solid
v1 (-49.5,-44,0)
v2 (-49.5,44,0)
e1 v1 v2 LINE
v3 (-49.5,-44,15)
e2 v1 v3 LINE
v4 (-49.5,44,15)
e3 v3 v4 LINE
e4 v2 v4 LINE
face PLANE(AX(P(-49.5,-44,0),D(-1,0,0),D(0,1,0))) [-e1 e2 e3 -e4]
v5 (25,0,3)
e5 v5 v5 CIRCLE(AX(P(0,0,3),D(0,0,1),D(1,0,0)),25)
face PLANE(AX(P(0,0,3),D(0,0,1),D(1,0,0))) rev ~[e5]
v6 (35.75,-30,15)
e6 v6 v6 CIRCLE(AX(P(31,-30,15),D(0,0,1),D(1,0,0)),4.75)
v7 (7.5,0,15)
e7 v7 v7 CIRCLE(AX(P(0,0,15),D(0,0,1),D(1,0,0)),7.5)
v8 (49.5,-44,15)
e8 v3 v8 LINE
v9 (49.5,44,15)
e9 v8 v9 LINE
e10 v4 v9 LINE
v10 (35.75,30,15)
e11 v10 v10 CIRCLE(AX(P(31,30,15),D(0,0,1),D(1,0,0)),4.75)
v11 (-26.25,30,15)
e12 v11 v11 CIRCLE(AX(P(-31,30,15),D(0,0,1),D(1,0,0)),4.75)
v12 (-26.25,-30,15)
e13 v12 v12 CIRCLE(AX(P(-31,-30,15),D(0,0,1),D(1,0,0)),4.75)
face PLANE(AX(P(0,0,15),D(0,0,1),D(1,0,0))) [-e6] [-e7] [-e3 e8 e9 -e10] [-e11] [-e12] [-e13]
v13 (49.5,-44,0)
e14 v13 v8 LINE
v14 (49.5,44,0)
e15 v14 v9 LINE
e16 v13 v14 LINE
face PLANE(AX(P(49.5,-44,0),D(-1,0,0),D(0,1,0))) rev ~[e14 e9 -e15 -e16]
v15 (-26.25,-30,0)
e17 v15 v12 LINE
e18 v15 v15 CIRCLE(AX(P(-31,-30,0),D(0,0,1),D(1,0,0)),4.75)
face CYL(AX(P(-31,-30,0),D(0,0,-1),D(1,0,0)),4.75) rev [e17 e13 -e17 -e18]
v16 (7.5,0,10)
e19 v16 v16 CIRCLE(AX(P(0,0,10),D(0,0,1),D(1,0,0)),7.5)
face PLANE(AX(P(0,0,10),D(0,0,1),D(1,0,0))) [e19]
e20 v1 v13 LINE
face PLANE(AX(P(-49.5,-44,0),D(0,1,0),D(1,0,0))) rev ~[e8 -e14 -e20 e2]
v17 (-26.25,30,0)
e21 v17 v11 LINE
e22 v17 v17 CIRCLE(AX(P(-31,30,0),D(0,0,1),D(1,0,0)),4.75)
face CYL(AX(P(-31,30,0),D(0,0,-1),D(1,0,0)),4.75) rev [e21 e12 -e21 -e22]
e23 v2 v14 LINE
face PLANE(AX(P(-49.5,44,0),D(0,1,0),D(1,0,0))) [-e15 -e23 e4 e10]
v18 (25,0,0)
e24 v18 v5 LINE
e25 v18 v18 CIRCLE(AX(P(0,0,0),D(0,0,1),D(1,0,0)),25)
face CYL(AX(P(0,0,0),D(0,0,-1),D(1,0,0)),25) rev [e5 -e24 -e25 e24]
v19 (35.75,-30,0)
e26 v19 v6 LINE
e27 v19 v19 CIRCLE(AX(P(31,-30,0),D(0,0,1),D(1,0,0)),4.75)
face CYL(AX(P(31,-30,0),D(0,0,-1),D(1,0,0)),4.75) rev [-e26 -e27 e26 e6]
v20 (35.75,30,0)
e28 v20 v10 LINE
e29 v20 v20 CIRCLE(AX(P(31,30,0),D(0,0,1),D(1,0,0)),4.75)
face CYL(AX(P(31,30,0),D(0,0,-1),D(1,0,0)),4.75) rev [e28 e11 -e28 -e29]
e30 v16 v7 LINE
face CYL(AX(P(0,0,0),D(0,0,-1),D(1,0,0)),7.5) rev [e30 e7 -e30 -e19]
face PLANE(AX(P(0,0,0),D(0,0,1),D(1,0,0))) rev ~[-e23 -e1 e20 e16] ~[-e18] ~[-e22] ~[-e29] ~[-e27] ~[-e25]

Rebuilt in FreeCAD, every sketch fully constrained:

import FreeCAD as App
import Part
import Sketcher

doc = App.newDocument("Part")
body = doc.addObject("PartDesign::Body", "Body")

sketch1 = doc.addObject("Sketcher::SketchObject", "Sketch")
body.addObject(sketch1)
sketch1.AttachmentSupport = (doc.XY_Plane, [""])
sketch1.MapMode = "FlatFace"
sketch1.addGeometry(Part.Circle(App.Vector(0, 0, 0), App.Vector(0, 0, 1), 8), False)
sketch1.addConstraint([
    Sketcher.Constraint("Coincident", 0, 3, -1, 1),
    Sketcher.Constraint("Diameter", 0, 15.0),
])
pad1 = doc.addObject("PartDesign::Pad", "Pad")
body.addObject(pad1)
pad1.Profile = sketch1
pad1.Length = 10

sketch2 = doc.addObject("Sketcher::SketchObject", "Sketch001")
body.addObject(sketch2)
sketch2.AttachmentSupport = (doc.XY_Plane, [""])
sketch2.MapMode = "FlatFace"
sketch2.addGeometry([
    Part.LineSegment(App.Vector(-49.5, 44, 0), App.Vector(-49.5, -44, 0)),
    Part.LineSegment(App.Vector(-49.5, -44, 0), App.Vector(49.5, -44, 0)),
    Part.LineSegment(App.Vector(49.5, -44, 0), App.Vector(49.5, 44, 0)),
    Part.LineSegment(App.Vector(49.5, 44, 0), App.Vector(-49.5, 44, 0)),
    Part.Circle(App.Vector(-31, -30, 0), App.Vector(0, 0, 1), 4.8),
    Part.Circle(App.Vector(31, -30, 0), App.Vector(0, 0, 1), 4.8),
    Part.Circle(App.Vector(-31, 30, 0), App.Vector(0, 0, 1), 4.8),
    Part.Circle(App.Vector(0, 0, 0), App.Vector(0, 0, 1), 7.5),
    Part.Circle(App.Vector(31, 30, 0), App.Vector(0, 0, 1), 4.8),
], False)
sketch2.addConstraint([
    Sketcher.Constraint("Coincident", 0, 2, 1, 1),
    Sketcher.Constraint("Coincident", 1, 2, 2, 1),
    Sketcher.Constraint("Coincident", 2, 2, 3, 1),
    Sketcher.Constraint("Coincident", 3, 2, 0, 1),
    Sketcher.Constraint("Vertical", 0),
    Sketcher.Constraint("Horizontal", 1),
    Sketcher.Constraint("Vertical", 2),
    Sketcher.Constraint("Horizontal", 3),
    Sketcher.Constraint("Coincident", 7, 3, -1, 1),
    Sketcher.Constraint("Equal", 4, 5),
    Sketcher.Constraint("Equal", 5, 6),
    Sketcher.Constraint("Equal", 6, 8),
    Sketcher.Constraint("Symmetric", 5, 3, 6, 3, -1, 1),
    Sketcher.Constraint("Symmetric", 4, 3, 8, 3, -1, 1),
    Sketcher.Constraint("Symmetric", 0, 2, 2, 2, -1, 1),
    Sketcher.Constraint("Symmetric", 4, 3, 5, 3, -2),
    Sketcher.Constraint("Diameter", 7, 15.0),
    Sketcher.Constraint("Diameter", 4, 9.5),
    Sketcher.Constraint("DistanceX", 1, 1, 1, 2, 99.0),
    Sketcher.Constraint("DistanceY", 0, 2, 0, 1, 88.0),
    Sketcher.Constraint("DistanceX", 4, 3, -1, 1, 31.0),
    Sketcher.Constraint("DistanceY", 4, 3, -1, 1, 30.0),
])
pad2 = doc.addObject("PartDesign::Pad", "Pad001")
body.addObject(pad2)
pad2.Profile = sketch2
pad2.Length = 15

sketch3 = doc.addObject("Sketcher::SketchObject", "Sketch002")
body.addObject(sketch3)
sketch3.AttachmentSupport = (doc.XY_Plane, [""])
sketch3.MapMode = "FlatFace"
sketch3.addGeometry(Part.Circle(App.Vector(0, 0, 0), App.Vector(0, 0, 1), 25), False)
sketch3.addConstraint([
    Sketcher.Constraint("Coincident", 0, 3, -1, 1),
    Sketcher.Constraint("Diameter", 0, 50.0),
])
pocket1 = doc.addObject("PartDesign::Pocket", "Pocket")
body.addObject(pocket1)
pocket1.Profile = sketch3
pocket1.Length = 3
pocket1.Reversed = True

doc.recompute()
